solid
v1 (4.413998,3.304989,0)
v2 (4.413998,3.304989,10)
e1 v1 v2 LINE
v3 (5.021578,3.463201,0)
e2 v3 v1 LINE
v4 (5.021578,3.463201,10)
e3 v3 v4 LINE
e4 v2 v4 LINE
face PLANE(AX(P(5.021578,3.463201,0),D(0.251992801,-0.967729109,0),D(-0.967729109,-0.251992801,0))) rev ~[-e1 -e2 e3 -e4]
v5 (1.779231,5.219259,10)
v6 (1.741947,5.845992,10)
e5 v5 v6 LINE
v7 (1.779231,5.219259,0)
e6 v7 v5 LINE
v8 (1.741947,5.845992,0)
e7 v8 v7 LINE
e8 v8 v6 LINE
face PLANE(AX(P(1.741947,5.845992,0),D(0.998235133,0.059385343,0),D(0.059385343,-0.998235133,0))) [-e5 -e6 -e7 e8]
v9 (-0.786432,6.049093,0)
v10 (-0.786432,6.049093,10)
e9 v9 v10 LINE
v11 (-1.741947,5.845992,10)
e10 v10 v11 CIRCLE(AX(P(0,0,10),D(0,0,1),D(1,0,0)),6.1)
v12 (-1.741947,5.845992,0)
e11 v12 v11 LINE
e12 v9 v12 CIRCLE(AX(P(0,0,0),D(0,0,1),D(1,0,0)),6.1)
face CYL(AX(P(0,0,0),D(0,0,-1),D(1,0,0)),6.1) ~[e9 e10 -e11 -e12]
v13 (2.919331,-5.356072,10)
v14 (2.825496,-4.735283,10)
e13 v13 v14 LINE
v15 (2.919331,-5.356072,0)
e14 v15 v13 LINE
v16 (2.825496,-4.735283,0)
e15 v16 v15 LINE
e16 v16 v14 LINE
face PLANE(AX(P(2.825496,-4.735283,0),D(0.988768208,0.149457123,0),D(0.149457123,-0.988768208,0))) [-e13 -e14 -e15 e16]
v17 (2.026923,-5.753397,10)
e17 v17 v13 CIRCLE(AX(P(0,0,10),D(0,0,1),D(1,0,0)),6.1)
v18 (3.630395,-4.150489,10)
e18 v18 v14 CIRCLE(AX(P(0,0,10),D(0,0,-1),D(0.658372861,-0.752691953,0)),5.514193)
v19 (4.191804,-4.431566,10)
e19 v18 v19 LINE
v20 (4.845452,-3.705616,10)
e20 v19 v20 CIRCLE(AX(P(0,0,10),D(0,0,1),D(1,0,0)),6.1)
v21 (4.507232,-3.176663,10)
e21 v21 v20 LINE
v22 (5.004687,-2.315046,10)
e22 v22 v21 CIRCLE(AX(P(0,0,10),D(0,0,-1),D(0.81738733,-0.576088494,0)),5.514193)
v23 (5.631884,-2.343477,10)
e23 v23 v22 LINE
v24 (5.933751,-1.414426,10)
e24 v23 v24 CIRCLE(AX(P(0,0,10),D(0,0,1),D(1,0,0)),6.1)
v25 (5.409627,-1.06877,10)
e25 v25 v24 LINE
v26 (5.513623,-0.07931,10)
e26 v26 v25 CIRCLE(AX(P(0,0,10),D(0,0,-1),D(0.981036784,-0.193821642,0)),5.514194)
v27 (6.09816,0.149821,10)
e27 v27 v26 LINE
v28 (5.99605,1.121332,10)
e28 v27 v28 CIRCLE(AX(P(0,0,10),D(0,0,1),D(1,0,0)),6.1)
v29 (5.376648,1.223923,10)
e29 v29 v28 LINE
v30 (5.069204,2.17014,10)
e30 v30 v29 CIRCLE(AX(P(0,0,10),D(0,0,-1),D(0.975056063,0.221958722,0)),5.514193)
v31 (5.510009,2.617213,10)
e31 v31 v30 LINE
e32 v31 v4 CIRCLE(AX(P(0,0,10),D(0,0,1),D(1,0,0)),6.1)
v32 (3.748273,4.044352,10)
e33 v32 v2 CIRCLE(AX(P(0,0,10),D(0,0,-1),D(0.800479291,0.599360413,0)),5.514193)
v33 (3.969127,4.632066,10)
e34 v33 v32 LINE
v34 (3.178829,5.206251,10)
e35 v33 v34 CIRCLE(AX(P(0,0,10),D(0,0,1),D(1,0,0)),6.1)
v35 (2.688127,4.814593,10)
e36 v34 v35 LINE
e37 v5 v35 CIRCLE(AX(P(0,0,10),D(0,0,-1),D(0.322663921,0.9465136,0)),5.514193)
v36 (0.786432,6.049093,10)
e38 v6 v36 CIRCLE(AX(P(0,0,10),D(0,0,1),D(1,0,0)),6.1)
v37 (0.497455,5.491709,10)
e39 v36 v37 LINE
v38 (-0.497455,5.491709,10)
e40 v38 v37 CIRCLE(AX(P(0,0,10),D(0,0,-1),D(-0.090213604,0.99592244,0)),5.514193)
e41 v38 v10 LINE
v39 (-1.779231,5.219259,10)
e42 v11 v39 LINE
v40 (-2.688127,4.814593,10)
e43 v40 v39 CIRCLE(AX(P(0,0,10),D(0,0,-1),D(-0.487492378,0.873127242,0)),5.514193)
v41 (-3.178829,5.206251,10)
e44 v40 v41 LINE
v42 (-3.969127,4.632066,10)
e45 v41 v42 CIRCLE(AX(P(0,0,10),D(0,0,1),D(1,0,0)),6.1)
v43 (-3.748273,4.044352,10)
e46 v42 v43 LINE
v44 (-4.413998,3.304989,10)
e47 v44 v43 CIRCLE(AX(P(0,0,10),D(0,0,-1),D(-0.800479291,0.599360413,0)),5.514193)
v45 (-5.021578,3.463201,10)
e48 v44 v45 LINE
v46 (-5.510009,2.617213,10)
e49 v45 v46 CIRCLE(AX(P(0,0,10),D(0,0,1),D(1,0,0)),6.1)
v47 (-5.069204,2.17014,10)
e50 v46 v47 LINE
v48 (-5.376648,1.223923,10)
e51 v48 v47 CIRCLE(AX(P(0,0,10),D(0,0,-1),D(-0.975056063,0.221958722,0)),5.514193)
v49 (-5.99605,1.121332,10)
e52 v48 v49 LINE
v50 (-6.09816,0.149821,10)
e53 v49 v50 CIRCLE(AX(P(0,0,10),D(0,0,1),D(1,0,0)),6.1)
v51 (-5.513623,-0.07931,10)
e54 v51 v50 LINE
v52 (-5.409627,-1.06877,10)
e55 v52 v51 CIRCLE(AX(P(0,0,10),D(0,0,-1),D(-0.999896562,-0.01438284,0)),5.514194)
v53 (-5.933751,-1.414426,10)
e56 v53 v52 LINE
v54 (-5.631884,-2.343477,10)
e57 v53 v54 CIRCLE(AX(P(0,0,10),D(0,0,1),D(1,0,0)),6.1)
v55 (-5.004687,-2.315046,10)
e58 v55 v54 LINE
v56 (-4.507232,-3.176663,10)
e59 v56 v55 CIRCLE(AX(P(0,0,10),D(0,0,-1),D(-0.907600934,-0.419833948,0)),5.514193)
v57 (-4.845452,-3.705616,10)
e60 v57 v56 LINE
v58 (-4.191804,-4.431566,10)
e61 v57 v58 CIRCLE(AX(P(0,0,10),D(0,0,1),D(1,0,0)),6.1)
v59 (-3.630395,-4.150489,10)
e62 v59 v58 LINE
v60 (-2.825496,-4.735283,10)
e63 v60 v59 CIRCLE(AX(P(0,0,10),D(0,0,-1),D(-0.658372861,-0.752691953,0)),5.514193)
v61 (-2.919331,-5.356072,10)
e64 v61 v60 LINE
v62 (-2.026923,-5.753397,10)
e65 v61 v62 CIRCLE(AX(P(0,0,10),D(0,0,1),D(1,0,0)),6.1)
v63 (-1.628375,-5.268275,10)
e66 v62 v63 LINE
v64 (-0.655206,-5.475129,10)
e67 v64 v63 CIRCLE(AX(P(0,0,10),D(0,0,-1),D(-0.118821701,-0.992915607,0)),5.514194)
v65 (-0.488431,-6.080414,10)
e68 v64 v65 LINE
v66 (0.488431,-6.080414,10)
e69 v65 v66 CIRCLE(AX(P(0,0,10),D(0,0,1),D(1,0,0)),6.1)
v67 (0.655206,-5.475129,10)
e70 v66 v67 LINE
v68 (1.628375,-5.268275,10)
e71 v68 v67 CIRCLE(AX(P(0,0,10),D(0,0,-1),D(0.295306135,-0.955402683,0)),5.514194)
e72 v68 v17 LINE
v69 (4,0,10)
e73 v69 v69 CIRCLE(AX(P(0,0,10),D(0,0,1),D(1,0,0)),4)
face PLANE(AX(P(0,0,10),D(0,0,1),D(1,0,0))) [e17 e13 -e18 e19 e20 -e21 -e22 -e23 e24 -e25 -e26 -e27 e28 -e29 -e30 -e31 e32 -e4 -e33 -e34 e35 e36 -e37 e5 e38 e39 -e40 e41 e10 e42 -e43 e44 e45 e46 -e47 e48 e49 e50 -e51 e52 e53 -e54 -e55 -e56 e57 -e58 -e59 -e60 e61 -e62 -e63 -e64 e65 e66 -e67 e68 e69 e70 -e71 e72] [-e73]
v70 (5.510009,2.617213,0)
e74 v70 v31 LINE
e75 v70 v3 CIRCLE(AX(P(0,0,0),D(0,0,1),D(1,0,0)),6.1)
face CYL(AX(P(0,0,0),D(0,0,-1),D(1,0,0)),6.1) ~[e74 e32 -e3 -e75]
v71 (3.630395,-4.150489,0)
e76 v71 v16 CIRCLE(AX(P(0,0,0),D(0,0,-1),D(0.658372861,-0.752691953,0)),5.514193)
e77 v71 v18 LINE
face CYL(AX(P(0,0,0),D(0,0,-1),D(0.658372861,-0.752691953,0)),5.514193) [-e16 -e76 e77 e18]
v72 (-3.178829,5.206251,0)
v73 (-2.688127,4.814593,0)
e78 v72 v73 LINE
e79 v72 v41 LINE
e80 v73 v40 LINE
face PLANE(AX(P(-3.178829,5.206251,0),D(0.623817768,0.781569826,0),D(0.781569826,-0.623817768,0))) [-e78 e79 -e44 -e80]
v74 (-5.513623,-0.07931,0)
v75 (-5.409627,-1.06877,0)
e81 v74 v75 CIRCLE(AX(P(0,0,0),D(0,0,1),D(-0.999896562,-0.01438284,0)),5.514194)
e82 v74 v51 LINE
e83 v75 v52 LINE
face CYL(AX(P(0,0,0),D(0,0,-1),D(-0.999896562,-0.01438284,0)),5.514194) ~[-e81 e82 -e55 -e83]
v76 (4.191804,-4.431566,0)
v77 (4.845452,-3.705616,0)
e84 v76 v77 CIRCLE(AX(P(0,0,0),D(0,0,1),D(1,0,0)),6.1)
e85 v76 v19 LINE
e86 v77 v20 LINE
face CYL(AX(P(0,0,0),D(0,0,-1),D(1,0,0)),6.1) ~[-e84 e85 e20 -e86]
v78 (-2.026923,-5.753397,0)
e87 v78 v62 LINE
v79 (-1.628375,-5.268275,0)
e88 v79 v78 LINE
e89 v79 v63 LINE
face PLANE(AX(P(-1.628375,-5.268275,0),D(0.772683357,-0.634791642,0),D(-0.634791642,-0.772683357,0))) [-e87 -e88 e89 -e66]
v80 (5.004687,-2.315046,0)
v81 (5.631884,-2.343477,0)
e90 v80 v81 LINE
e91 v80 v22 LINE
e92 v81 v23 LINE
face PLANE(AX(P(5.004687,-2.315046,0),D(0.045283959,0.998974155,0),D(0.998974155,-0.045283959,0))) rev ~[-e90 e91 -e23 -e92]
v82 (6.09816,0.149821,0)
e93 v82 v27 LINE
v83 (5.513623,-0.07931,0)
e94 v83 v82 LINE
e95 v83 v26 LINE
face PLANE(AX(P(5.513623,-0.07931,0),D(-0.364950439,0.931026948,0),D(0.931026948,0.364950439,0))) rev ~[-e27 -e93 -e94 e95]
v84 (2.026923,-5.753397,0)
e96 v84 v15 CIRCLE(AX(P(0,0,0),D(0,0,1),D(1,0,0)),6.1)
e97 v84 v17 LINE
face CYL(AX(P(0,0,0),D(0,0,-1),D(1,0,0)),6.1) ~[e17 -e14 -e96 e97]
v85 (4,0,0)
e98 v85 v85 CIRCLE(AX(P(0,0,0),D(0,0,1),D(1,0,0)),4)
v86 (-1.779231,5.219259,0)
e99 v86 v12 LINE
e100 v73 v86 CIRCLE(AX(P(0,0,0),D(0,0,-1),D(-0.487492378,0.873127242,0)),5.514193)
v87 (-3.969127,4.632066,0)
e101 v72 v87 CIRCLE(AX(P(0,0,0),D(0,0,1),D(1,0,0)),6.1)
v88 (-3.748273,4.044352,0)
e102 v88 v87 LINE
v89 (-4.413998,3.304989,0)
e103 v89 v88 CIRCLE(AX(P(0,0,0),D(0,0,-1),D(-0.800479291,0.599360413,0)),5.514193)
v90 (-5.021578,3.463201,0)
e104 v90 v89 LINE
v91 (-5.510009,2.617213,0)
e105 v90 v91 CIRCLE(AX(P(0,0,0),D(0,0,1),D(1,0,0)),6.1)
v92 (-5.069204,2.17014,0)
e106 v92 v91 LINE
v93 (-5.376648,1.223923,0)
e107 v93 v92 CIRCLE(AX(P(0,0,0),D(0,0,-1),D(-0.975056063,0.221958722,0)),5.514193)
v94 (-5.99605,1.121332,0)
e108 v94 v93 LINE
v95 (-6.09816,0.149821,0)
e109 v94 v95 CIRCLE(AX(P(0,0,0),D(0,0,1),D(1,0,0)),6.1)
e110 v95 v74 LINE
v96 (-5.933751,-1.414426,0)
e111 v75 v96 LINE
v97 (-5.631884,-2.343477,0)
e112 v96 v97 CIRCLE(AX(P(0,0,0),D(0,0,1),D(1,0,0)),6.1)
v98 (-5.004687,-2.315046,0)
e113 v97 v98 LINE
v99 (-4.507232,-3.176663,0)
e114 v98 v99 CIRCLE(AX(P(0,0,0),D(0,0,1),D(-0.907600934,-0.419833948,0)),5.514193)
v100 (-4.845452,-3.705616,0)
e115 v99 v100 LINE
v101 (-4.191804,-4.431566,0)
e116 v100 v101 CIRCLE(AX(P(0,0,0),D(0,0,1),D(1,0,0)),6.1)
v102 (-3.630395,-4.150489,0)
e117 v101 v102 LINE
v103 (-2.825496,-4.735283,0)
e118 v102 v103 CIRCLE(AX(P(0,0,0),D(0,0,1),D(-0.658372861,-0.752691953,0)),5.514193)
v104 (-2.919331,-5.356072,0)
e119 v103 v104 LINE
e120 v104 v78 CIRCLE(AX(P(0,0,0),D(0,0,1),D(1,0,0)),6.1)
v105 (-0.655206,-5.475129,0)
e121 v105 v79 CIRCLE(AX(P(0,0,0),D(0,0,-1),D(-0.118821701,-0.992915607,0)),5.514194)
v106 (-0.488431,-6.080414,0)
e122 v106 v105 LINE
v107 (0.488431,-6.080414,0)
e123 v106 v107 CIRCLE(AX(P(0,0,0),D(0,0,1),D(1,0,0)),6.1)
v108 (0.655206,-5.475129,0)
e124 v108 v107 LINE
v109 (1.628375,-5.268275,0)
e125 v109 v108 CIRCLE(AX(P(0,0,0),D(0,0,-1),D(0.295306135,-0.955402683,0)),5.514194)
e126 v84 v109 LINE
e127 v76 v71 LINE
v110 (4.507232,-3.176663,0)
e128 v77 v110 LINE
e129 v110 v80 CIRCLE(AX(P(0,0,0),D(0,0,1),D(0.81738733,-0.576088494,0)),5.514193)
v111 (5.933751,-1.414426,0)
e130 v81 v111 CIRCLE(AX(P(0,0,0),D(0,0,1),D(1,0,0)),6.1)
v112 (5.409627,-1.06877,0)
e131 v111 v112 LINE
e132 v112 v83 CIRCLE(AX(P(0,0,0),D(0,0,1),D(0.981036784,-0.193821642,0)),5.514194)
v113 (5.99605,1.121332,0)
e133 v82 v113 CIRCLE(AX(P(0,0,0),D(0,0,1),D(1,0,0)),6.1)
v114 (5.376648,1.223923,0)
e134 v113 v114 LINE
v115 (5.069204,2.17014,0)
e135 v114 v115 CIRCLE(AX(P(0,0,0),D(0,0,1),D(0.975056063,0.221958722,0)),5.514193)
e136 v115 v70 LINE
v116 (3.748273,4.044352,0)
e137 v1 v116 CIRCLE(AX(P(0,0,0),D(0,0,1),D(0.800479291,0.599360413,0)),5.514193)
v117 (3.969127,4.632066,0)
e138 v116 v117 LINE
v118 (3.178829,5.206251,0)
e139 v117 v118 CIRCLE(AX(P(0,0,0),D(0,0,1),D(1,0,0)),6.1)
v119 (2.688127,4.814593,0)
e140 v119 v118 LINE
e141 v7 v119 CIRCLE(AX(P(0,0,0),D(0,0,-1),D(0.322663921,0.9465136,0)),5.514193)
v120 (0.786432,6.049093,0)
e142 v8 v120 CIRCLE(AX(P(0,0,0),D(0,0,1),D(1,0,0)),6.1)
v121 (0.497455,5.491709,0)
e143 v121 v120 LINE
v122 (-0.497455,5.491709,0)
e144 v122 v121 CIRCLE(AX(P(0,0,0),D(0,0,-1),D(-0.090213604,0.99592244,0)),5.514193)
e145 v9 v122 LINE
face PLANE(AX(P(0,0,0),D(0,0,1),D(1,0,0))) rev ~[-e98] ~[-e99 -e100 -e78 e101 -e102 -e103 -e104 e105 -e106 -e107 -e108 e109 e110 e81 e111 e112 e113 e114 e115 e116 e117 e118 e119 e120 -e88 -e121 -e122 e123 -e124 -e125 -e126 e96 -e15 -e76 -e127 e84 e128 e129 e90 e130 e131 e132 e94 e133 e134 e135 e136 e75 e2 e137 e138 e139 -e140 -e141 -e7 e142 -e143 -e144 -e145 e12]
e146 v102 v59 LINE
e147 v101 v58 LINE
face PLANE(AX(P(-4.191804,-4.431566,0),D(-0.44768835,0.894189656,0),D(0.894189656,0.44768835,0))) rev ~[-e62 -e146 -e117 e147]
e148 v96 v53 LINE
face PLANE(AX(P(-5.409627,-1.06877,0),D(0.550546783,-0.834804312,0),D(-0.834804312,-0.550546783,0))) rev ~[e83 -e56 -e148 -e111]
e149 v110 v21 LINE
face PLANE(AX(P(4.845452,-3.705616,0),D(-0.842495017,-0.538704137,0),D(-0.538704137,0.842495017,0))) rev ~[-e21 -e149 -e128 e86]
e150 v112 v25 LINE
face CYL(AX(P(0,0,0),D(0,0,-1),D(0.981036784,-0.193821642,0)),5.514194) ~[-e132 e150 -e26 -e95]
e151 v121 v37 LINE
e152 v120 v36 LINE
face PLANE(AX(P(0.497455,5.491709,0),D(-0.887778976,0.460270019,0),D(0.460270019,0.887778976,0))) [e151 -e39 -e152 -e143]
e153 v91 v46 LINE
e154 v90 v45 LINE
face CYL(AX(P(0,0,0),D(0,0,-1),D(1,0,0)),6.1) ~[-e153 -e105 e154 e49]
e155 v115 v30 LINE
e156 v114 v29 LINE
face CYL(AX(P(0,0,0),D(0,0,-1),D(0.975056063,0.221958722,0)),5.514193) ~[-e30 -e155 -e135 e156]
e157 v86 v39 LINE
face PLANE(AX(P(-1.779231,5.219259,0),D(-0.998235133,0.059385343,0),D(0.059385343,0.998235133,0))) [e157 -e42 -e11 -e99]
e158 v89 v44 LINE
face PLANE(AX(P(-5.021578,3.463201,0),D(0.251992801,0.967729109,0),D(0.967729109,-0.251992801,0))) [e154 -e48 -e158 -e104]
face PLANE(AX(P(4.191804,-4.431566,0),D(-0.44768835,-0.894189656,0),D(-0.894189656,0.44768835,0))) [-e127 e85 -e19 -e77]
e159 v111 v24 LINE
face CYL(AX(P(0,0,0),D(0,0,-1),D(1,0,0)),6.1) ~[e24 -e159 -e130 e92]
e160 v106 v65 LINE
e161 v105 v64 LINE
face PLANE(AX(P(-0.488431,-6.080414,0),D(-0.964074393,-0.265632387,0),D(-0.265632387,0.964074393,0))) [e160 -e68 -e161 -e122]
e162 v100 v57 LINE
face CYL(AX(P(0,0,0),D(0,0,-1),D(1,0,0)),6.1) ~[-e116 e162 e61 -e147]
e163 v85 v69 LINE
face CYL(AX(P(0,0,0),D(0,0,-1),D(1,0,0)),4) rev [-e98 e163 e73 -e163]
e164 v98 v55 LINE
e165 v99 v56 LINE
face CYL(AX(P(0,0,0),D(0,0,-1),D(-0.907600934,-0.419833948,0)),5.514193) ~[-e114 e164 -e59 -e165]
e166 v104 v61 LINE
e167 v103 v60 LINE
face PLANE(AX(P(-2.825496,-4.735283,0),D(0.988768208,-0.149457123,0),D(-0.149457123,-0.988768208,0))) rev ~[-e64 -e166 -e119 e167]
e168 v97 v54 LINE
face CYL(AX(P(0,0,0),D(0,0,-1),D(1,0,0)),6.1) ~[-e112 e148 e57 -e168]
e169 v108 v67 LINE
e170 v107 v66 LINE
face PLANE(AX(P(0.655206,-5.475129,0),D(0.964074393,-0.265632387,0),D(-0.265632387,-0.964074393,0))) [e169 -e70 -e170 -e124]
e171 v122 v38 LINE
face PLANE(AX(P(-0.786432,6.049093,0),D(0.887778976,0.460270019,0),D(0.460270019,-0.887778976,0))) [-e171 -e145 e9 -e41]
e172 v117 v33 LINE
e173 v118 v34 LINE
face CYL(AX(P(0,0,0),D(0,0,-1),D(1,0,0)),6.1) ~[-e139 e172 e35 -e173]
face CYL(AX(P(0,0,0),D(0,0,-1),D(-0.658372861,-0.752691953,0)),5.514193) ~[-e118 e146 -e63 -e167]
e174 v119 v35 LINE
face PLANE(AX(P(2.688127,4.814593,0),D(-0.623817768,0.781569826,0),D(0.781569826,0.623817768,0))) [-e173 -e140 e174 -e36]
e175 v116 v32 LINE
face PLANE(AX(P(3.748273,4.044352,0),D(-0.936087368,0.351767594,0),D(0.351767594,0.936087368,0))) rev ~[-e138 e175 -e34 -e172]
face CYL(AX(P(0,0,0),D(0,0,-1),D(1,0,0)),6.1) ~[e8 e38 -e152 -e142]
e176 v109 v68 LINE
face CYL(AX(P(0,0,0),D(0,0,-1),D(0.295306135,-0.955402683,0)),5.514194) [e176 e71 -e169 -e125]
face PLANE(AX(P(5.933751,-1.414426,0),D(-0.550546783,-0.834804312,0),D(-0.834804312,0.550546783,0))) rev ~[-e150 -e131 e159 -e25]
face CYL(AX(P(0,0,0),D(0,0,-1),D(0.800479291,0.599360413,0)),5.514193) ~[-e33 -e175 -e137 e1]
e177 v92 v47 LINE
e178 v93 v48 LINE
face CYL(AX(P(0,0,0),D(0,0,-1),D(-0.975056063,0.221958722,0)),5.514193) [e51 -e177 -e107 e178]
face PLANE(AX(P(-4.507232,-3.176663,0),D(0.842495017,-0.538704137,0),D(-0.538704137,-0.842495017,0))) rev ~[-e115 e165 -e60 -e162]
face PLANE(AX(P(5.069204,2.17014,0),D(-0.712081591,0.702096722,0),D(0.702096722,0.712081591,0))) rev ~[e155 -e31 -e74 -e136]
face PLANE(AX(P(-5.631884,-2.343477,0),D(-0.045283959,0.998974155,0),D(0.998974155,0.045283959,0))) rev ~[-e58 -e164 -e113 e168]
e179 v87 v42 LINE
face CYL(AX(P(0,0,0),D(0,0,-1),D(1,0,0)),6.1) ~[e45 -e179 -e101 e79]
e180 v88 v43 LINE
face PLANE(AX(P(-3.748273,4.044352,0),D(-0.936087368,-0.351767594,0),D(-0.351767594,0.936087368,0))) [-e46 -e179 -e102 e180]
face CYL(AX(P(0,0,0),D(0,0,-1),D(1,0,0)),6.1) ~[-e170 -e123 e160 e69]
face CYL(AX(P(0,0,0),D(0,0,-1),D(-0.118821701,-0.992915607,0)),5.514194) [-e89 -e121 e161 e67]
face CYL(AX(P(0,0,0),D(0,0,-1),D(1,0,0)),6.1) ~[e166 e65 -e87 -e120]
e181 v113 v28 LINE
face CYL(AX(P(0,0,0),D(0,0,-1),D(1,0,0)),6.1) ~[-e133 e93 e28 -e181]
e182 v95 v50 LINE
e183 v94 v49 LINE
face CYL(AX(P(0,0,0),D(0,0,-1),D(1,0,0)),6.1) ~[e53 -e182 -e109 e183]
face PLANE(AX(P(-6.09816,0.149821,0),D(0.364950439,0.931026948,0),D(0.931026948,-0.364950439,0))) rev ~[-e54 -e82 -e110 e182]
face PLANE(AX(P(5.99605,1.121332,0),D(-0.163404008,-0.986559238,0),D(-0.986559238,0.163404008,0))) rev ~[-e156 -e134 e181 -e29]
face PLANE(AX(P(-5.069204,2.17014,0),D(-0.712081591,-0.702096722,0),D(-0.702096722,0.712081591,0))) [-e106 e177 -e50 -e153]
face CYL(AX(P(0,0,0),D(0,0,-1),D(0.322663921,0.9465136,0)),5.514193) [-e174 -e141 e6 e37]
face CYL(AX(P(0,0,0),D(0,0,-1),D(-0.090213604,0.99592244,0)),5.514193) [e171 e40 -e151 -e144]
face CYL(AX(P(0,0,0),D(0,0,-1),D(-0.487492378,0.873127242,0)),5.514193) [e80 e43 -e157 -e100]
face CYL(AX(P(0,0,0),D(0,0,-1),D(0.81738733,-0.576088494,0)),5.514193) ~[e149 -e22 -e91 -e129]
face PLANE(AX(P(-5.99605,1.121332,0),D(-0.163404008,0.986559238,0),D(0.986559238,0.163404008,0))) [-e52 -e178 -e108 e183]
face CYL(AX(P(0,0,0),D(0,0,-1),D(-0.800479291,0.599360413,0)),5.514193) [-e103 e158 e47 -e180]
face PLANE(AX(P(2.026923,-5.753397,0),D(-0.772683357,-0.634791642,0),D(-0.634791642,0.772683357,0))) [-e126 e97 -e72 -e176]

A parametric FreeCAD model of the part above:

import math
import FreeCAD as App
import Part
import Sketcher
from FreeCAD import Vector

doc = App.newDocument("Part")
body = doc.addObject("PartDesign::Body", "Body")

sketch1 = doc.addObject("Sketcher::SketchObject", "Sketch")
body.addObject(sketch1)
sketch1.AttachmentSupport = (doc.XY_Plane, [""])
sketch1.MapMode = "FlatFace"
sketch1.addGeometry(Part.Circle(Vector(0, 0, 0), Vector(0, 0, 1), 6.1), False)
sketch1.addGeometry(Part.Circle(Vector(0, 0, 0), Vector(0, 0, 1), 4), False)
sketch1.addConstraint(Sketcher.Constraint("Coincident", 0, 3, -1, 1))
sketch1.addConstraint(Sketcher.Constraint("Coincident", 1, 3, -1, 1))
sketch1.addConstraint(Sketcher.Constraint("Diameter", 1, 8.0))
sketch1.addConstraint(Sketcher.Constraint("Diameter", 0, 12.2))
pad1 = doc.addObject("PartDesign::Pad", "Pad")
body.addObject(pad1)
pad1.Profile = sketch1
pad1.Length = 10

sketch2 = doc.addObject("Sketcher::SketchObject", "Sketch001")
body.addObject(sketch2)
sketch2.AttachmentSupport = (doc.XY_Plane, [""])
sketch2.MapMode = "FlatFace"
sketch2.addGeometry(Part.LineSegment(Vector(-4.845452, -3.705616, 0), Vector(-4.507232, -3.176663, 0)), False)
sketch2.addGeometry(Part.ArcOfCircle(Part.Circle(Vector(0, 0, 0), Vector(0, 0, 1), 5.514193), math.radians(-155.175896), math.radians(-144.824104)), False)
sketch2.addGeometry(Part.LineSegment(Vector(-5.004687, -2.315046, 0), Vector(-5.631884, -2.343477, 0)), False)
sketch2.addGeometry(Part.ArcOfCircle(Part.Circle(Vector(0, 0, 0), Vector(0, 0, 1), 6.1), math.radians(-157.407373), math.radians(-142.592627)), False)
sketch2.addGeometry(Part.LineSegment(Vector(-5.933751, -1.414426, 0), Vector(-5.409627, -1.06877, 0)), False)
sketch2.addGeometry(Part.ArcOfCircle(Part.Circle(Vector(0, 0, 0), Vector(0, 0, 1), 5.514194), math.radians(-179.175896), math.radians(-168.824105)), False)
sketch2.addGeometry(Part.LineSegment(Vector(-5.513623, -0.07931, 0), Vector(-6.09816, 0.149821, 0)), False)
sketch2.addGeometry(Part.ArcOfCircle(Part.Circle(Vector(0, 0, 0), Vector(0, 0, 1), 6.1), math.radians(178.592627), math.radians(193.407373)), False)
sketch2.addGeometry(Part.ArcOfCircle(Part.Circle(Vector(0, 0, 0), Vector(0, 0, 1), 5.514193), math.radians(132.824104), math.radians(143.175896)), False)
sketch2.addGeometry(Part.LineSegment(Vector(-3.748273, 4.044352, 0), Vector(-3.969127, 4.632066, 0)), False)
sketch2.addGeometry(Part.ArcOfCircle(Part.Circle(Vector(0, 0, 0), Vector(0, 0, 1), 6.1), math.radians(130.592627), math.radians(145.407373)), False)
sketch2.addGeometry(Part.LineSegment(Vector(-5.021578, 3.463201, 0), Vector(-4.413998, 3.304989, 0)), False)
sketch2.addGeometry(Part.ArcOfCircle(Part.Circle(Vector(0, 0, 0), Vector(0, 0, 1), 5.514193), math.radians(108.824104), math.radians(119.175896)), False)
sketch2.addGeometry(Part.LineSegment(Vector(-1.779231, 5.219259, 0), Vector(-1.741947, 5.845992, 0)), False)
sketch2.addGeometry(Part.ArcOfCircle(Part.Circle(Vector(0, 0, 0), Vector(0, 0, 1), 6.1), math.radians(106.592627), math.radians(121.407373)), False)
sketch2.addGeometry(Part.LineSegment(Vector(-3.178829, 5.206251, 0), Vector(-2.688127, 4.814593, 0)), False)
sketch2.addGeometry(Part.LineSegment(Vector(0.497455, 5.491709, 0), Vector(0.786432, 6.049093, 0)), False)
sketch2.addGeometry(Part.ArcOfCircle(Part.Circle(Vector(0, 0, 0), Vector(0, 0, 1), 6.1), math.radians(82.592627), math.radians(97.407373)), False)
sketch2.addGeometry(Part.LineSegment(Vector(-0.786432, 6.049093, 0), Vector(-0.497455, 5.491709, 0)), False)
sketch2.addGeometry(Part.ArcOfCircle(Part.Circle(Vector(0, 0, 0), Vector(0, 0, 1), 5.514193), math.radians(84.824104), math.radians(95.175896)), False)
sketch2.addGeometry(Part.LineSegment(Vector(2.688127, 4.814593, 0), Vector(3.178829, 5.206251, 0)), False)
sketch2.addGeometry(Part.ArcOfCircle(Part.Circle(Vector(0, 0, 0), Vector(0, 0, 1), 6.1), math.radians(58.592627), math.radians(73.407373)), False)
sketch2.addGeometry(Part.LineSegment(Vector(1.741947, 5.845992, 0), Vector(1.779231, 5.219259, 0)), False)
sketch2.addGeometry(Part.ArcOfCircle(Part.Circle(Vector(0, 0, 0), Vector(0, 0, 1), 5.514193), math.radians(60.824104), math.radians(71.175896)), False)
sketch2.addGeometry(Part.LineSegment(Vector(3.969127, 4.632066, 0), Vector(3.748273, 4.044352, 0)), False)
sketch2.addGeometry(Part.ArcOfCircle(Part.Circle(Vector(0, 0, 0), Vector(0, 0, 1), 5.514193), math.radians(36.824104), math.radians(47.175896)), False)
sketch2.addGeometry(Part.LineSegment(Vector(4.413998, 3.304989, 0), Vector(5.021578, 3.463201, 0)), False)
sketch2.addGeometry(Part.ArcOfCircle(Part.Circle(Vector(0, 0, 0), Vector(0, 0, 1), 6.1), math.radians(34.592627), math.radians(49.407373)), False)
sketch2.addGeometry(Part.LineSegment(Vector(-5.069204, 2.17014, 0), Vector(-5.510009, 2.617213, 0)), False)
sketch2.addGeometry(Part.ArcOfCircle(Part.Circle(Vector(0, 0, 0), Vector(0, 0, 1), 6.1), math.radians(154.592627), math.radians(169.407373)), False)
sketch2.addGeometry(Part.LineSegment(Vector(-5.99605, 1.121332, 0), Vector(-5.376648, 1.223923, 0)), False)
sketch2.addGeometry(Part.ArcOfCircle(Part.Circle(Vector(0, 0, 0), Vector(0, 0, 1), 5.514193), math.radians(156.824104), math.radians(167.175896)), False)
sketch2.addGeometry(Part.ArcOfCircle(Part.Circle(Vector(0, 0, 0), Vector(0, 0, 1), 6.1), math.radians(10.592627), math.radians(25.407373)), False)
sketch2.addGeometry(Part.LineSegment(Vector(5.510009, 2.617213, 0), Vector(5.069204, 2.17014, 0)), False)
sketch2.addGeometry(Part.ArcOfCircle(Part.Circle(Vector(0, 0, 0), Vector(0, 0, 1), 5.514193), math.radians(12.824104), math.radians(23.175896)), False)
sketch2.addGeometry(Part.LineSegment(Vector(5.376648, 1.223923, 0), Vector(5.99605, 1.121332, 0)), False)
sketch2.addGeometry(Part.LineSegment(Vector(6.09816, 0.149821, 0), Vector(5.513623, -0.07931, 0)), False)
sketch2.addGeometry(Part.ArcOfCircle(Part.Circle(Vector(0, 0, 0), Vector(0, 0, 1), 5.514194), math.radians(-11.175895), math.radians(-0.824104)), False)
sketch2.addGeometry(Part.LineSegment(Vector(5.409627, -1.06877, 0), Vector(5.933751, -1.414426, 0)), False)
sketch2.addGeometry(Part.ArcOfCircle(Part.Circle(Vector(0, 0, 0), Vector(0, 0, 1), 6.1), math.radians(-13.407373), math.radians(1.407373)), False)
sketch2.addGeometry(Part.LineSegment(Vector(5.631884, -2.343477, 0), Vector(5.004687, -2.315046, 0)), False)
sketch2.addGeometry(Part.ArcOfCircle(Part.Circle(Vector(0, 0, 0), Vector(0, 0, 1), 5.514193), math.radians(-35.175896), math.radians(-24.824104)), False)
sketch2.addGeometry(Part.LineSegment(Vector(4.507232, -3.176663, 0), Vector(4.845452, -3.705616, 0)), False)
sketch2.addGeometry(Part.ArcOfCircle(Part.Circle(Vector(0, 0, 0), Vector(0, 0, 1), 6.1), math.radians(-37.407373), math.radians(-22.592627)), False)
sketch2.addGeometry(Part.ArcOfCircle(Part.Circle(Vector(0, 0, 0), Vector(0, 0, 1), 5.514193), math.radians(-59.175896), math.radians(-48.824104)), False)
sketch2.addGeometry(Part.LineSegment(Vector(2.825496, -4.735283, 0), Vector(2.919331, -5.356072, 0)), False)
sketch2.addGeometry(Part.ArcOfCircle(Part.Circle(Vector(0, 0, 0), Vector(0, 0, 1), 6.1), math.radians(-61.407373), math.radians(-46.592627)), False)
sketch2.addGeometry(Part.LineSegment(Vector(4.191804, -4.431566, 0), Vector(3.630395, -4.150489, 0)), False)
sketch2.addGeometry(Part.ArcOfCircle(Part.Circle(Vector(0, 0, 0), Vector(0, 0, 1), 5.514194), math.radians(-83.175896), math.radians(-72.824105)), False)
sketch2.addGeometry(Part.LineSegment(Vector(0.655206, -5.475129, 0), Vector(0.488431, -6.080414, 0)), False)
sketch2.addGeometry(Part.ArcOfCircle(Part.Circle(Vector(0, 0, 0), Vector(0, 0, 1), 6.1), math.radians(-85.407373), math.radians(-70.592627)), False)
sketch2.addGeometry(Part.LineSegment(Vector(2.026923, -5.753397, 0), Vector(1.628375, -5.268275, 0)), False)
sketch2.addGeometry(Part.ArcOfCircle(Part.Circle(Vector(0, 0, 0), Vector(0, 0, 1), 5.514194), math.radians(-107.175895), math.radians(-96.824104)), False)
sketch2.addGeometry(Part.LineSegment(Vector(-1.628375, -5.268275, 0), Vector(-2.026923, -5.753397, 0)), False)
sketch2.addGeometry(Part.ArcOfCircle(Part.Circle(Vector(0, 0, 0), Vector(0, 0, 1), 6.1), math.radians(-109.407373), math.radians(-94.592627)), False)
sketch2.addGeometry(Part.LineSegment(Vector(-0.488431, -6.080414, 0), Vector(-0.655206, -5.475129, 0)), False)
sketch2.addGeometry(Part.ArcOfCircle(Part.Circle(Vector(0, 0, 0), Vector(0, 0, 1), 6.1), math.radians(-133.407373), math.radians(-118.592627)), False)
sketch2.addGeometry(Part.LineSegment(Vector(-2.919331, -5.356072, 0), Vector(-2.825496, -4.735283, 0)), False)
sketch2.addGeometry(Part.ArcOfCircle(Part.Circle(Vector(0, 0, 0), Vector(0, 0, 1), 5.514193), math.radians(-131.175896), math.radians(-120.824104)), False)
sketch2.addGeometry(Part.LineSegment(Vector(-3.630395, -4.150489, 0), Vector(-4.191804, -4.431566, 0)), False)
sketch2.addConstraint(Sketcher.Constraint("Coincident", 0, 2, 1, 2))
sketch2.addConstraint(Sketcher.Constraint("Coincident", 1, 1, 2, 1))
sketch2.addConstraint(Sketcher.Constraint("Coincident", 2, 2, 3, 1))
sketch2.addConstraint(Sketcher.Constraint("Coincident", 3, 2, 0, 1))
sketch2.addConstraint(Sketcher.Constraint("Coincident", 4, 2, 5, 2))
sketch2.addConstraint(Sketcher.Constraint("Coincident", 5, 1, 6, 1))
sketch2.addConstraint(Sketcher.Constraint("Coincident", 6, 2, 7, 1))
sketch2.addConstraint(Sketcher.Constraint("Coincident", 7, 2, 4, 1))
sketch2.addConstraint(Sketcher.Constraint("Coincident", 8, 1, 9, 1))
sketch2.addConstraint(Sketcher.Constraint("Coincident", 9, 2, 10, 1))
sketch2.addConstraint(Sketcher.Constraint("Coincident", 10, 2, 11, 1))
sketch2.addConstraint(Sketcher.Constraint("Coincident", 11, 2, 8, 2))
sketch2.addConstraint(Sketcher.Constraint("Coincident", 12, 1, 13, 1))
sketch2.addConstraint(Sketcher.Constraint("Coincident", 13, 2, 14, 1))
sketch2.addConstraint(Sketcher.Constraint("Coincident", 14, 2, 15, 1))
sketch2.addConstraint(Sketcher.Constraint("Coincident", 15, 2, 12, 2))
sketch2.addConstraint(Sketcher.Constraint("Coincident", 16, 2, 17, 1))
sketch2.addConstraint(Sketcher.Constraint("Coincident", 17, 2, 18, 1))
sketch2.addConstraint(Sketcher.Constraint("Coincident", 18, 2, 19, 2))
sketch2.addConstraint(Sketcher.Constraint("Coincident", 19, 1, 16, 1))
sketch2.addConstraint(Sketcher.Constraint("Coincident", 20, 2, 21, 1))
sketch2.addConstraint(Sketcher.Constraint("Coincident", 21, 2, 22, 1))
sketch2.addConstraint(Sketcher.Constraint("Coincident", 22, 2, 23, 2))
sketch2.addConstraint(Sketcher.Constraint("Coincident", 23, 1, 20, 1))
sketch2.addConstraint(Sketcher.Constraint("Coincident", 24, 2, 25, 2))
sketch2.addConstraint(Sketcher.Constraint("Coincident", 25, 1, 26, 1))
sketch2.addConstraint(Sketcher.Constraint("Coincident", 26, 2, 27, 1))
sketch2.addConstraint(Sketcher.Constraint("Coincident", 27, 2, 24, 1))
sketch2.addConstraint(Sketcher.Constraint("Coincident", 28, 2, 29, 1))
sketch2.addConstraint(Sketcher.Constraint("Coincident", 29, 2, 30, 1))
sketch2.addConstraint(Sketcher.Constraint("Coincident", 30, 2, 31, 2))
sketch2.addConstraint(Sketcher.Constraint("Coincident", 31, 1, 28, 1))
sketch2.addConstraint(Sketcher.Constraint("Coincident", 32, 2, 33, 1))
sketch2.addConstraint(Sketcher.Constraint("Coincident", 33, 2, 34, 2))
sketch2.addConstraint(Sketcher.Constraint("Coincident", 34, 1, 35, 1))
sketch2.addConstraint(Sketcher.Constraint("Coincident", 35, 2, 32, 1))
sketch2.addConstraint(Sketcher.Constraint("Coincident", 36, 2, 37, 2))
sketch2.addConstraint(Sketcher.Constraint("Coincident", 37, 1, 38, 1))
sketch2.addConstraint(Sketcher.Constraint("Coincident", 38, 2, 39, 1))
sketch2.addConstraint(Sketcher.Constraint("Coincident", 39, 2, 36, 1))
sketch2.addConstraint(Sketcher.Constraint("Coincident", 40, 2, 41, 2))
sketch2.addConstraint(Sketcher.Constraint("Coincident", 41, 1, 42, 1))
sketch2.addConstraint(Sketcher.Constraint("Coincident", 42, 2, 43, 1))
sketch2.addConstraint(Sketcher.Constraint("Coincident", 43, 2, 40, 1))
sketch2.addConstraint(Sketcher.Constraint("Coincident", 44, 1, 45, 1))
sketch2.addConstraint(Sketcher.Constraint("Coincident", 45, 2, 46, 1))
sketch2.addConstraint(Sketcher.Constraint("Coincident", 46, 2, 47, 1))
sketch2.addConstraint(Sketcher.Constraint("Coincident", 47, 2, 44, 2))
sketch2.addConstraint(Sketcher.Constraint("Coincident", 48, 1, 49, 1))
sketch2.addConstraint(Sketcher.Constraint("Coincident", 49, 2, 50, 1))
sketch2.addConstraint(Sketcher.Constraint("Coincident", 50, 2, 51, 1))
sketch2.addConstraint(Sketcher.Constraint("Coincident", 51, 2, 48, 2))
sketch2.addConstraint(Sketcher.Constraint("Coincident", 52, 1, 53, 1))
sketch2.addConstraint(Sketcher.Constraint("Coincident", 53, 2, 54, 1))
sketch2.addConstraint(Sketcher.Constraint("Coincident", 54, 2, 55, 1))
sketch2.addConstraint(Sketcher.Constraint("Coincident", 55, 2, 52, 2))
sketch2.addConstraint(Sketcher.Constraint("Coincident", 56, 2, 57, 1))
sketch2.addConstraint(Sketcher.Constraint("Coincident", 57, 2, 58, 2))
sketch2.addConstraint(Sketcher.Constraint("Coincident", 58, 1, 59, 1))
sketch2.addConstraint(Sketcher.Constraint("Coincident", 59, 2, 56, 1))
sketch2.addConstraint(Sketcher.Constraint("Coincident", 1, 3, -1, 1))
sketch2.addConstraint(Sketcher.Constraint("Coincident", 3, 3, -1, 1))
sketch2.addConstraint(Sketcher.Constraint("Coincident", 5, 3, -1, 1))
sketch2.addConstraint(Sketcher.Constraint("Coincident", 7, 3, -1, 1))
sketch2.addConstraint(Sketcher.Constraint("Coincident", 8, 3, -1, 1))
sketch2.addConstraint(Sketcher.Constraint("Coincident", 10, 3, -1, 1))
sketch2.addConstraint(Sketcher.Constraint("Coincident", 12, 3, -1, 1))
sketch2.addConstraint(Sketcher.Constraint("Coincident", 14, 3, -1, 1))
sketch2.addConstraint(Sketcher.Constraint("Coincident", 17, 3, -1, 1))
sketch2.addConstraint(Sketcher.Constraint("Coincident", 19, 3, -1, 1))
sketch2.addConstraint(Sketcher.Constraint("Coincident", 21, 3, -1, 1))
sketch2.addConstraint(Sketcher.Constraint("Coincident", 23, 3, -1, 1))
sketch2.addConstraint(Sketcher.Constraint("Coincident", 25, 3, -1, 1))
sketch2.addConstraint(Sketcher.Constraint("Coincident", 27, 3, -1, 1))
sketch2.addConstraint(Sketcher.Constraint("Coincident", 29, 3, -1, 1))
sketch2.addConstraint(Sketcher.Constraint("Coincident", 31, 3, -1, 1))
sketch2.addConstraint(Sketcher.Constraint("Coincident", 32, 3, -1, 1))
sketch2.addConstraint(Sketcher.Constraint("Coincident", 34, 3, -1, 1))
sketch2.addConstraint(Sketcher.Constraint("Coincident", 37, 3, -1, 1))
sketch2.addConstraint(Sketcher.Constraint("Coincident", 39, 3, -1, 1))
sketch2.addConstraint(Sketcher.Constraint("Coincident", 41, 3, -1, 1))
sketch2.addConstraint(Sketcher.Constraint("Coincident", 43, 3, -1, 1))
sketch2.addConstraint(Sketcher.Constraint("Coincident", 44, 3, -1, 1))
sketch2.addConstraint(Sketcher.Constraint("Coincident", 46, 3, -1, 1))
sketch2.addConstraint(Sketcher.Constraint("Coincident", 48, 3, -1, 1))
sketch2.addConstraint(Sketcher.Constraint("Coincident", 50, 3, -1, 1))
sketch2.addConstraint(Sketcher.Constraint("Coincident", 52, 3, -1, 1))
sketch2.addConstraint(Sketcher.Constraint("Coincident", 54, 3, -1, 1))
sketch2.addConstraint(Sketcher.Constraint("Coincident", 56, 3, -1, 1))
sketch2.addConstraint(Sketcher.Constraint("Coincident", 58, 3, -1, 1))
sketch2.addConstraint(Sketcher.Constraint("Equal", 1, 5))
sketch2.addConstraint(Sketcher.Constraint("Equal", 3, 7))
sketch2.addConstraint(Sketcher.Constraint("Equal", 5, 8))
sketch2.addConstraint(Sketcher.Constraint("Equal", 7, 10))
sketch2.addConstraint(Sketcher.Constraint("Equal", 8, 12))
sketch2.addConstraint(Sketcher.Constraint("Equal", 10, 14))
sketch2.addConstraint(Sketcher.Constraint("Equal", 14, 17))
sketch2.addConstraint(Sketcher.Constraint("Equal", 12, 19))
sketch2.addConstraint(Sketcher.Constraint("Equal", 17, 21))
sketch2.addConstraint(Sketcher.Constraint("Equal", 19, 23))
sketch2.addConstraint(Sketcher.Constraint("Equal", 23, 25))
sketch2.addConstraint(Sketcher.Constraint("Equal", 21, 27))
sketch2.addConstraint(Sketcher.Constraint("Equal", 27, 29))
sketch2.addConstraint(Sketcher.Constraint("Equal", 25, 31))
sketch2.addConstraint(Sketcher.Constraint("Equal", 29, 32))
sketch2.addConstraint(Sketcher.Constraint("Equal", 31, 34))
sketch2.addConstraint(Sketcher.Constraint("Equal", 34, 37))
sketch2.addConstraint(Sketcher.Constraint("Equal", 32, 39))
sketch2.addConstraint(Sketcher.Constraint("Equal", 37, 41))
sketch2.addConstraint(Sketcher.Constraint("Equal", 39, 43))
sketch2.addConstraint(Sketcher.Constraint("Equal", 41, 44))
sketch2.addConstraint(Sketcher.Constraint("Equal", 43, 46))
sketch2.addConstraint(Sketcher.Constraint("Equal", 44, 48))
sketch2.addConstraint(Sketcher.Constraint("Equal", 46, 50))
sketch2.addConstraint(Sketcher.Constraint("Equal", 48, 52))
sketch2.addConstraint(Sketcher.Constraint("Equal", 50, 54))
sketch2.addConstraint(Sketcher.Constraint("Equal", 54, 56))
sketch2.addConstraint(Sketcher.Constraint("Equal", 52, 58))
sketch2.addConstraint(Sketcher.Constraint("Horizontal", 16, 2, 17, 2))
sketch2.addConstraint(Sketcher.Constraint("Horizontal", 18, 2, 19, 1))
sketch2.addConstraint(Sketcher.Constraint("Horizontal", 14, 2, 20, 2))
sketch2.addConstraint(Sketcher.Constraint("Horizontal", 13, 2, 21, 2))
sketch2.addConstraint(Sketcher.Constraint("Horizontal", 12, 1, 22, 2))
sketch2.addConstraint(Sketcher.Constraint("Horizontal", 15, 2, 23, 1))
sketch2.addConstraint(Sketcher.Constraint("Horizontal", 8, 1, 24, 2))
sketch2.addConstraint(Sketcher.Constraint("Horizontal", 11, 2, 25, 1))
sketch2.addConstraint(Sketcher.Constraint("Horizontal", 10, 2, 26, 2))
sketch2.addConstraint(Sketcher.Constraint("Horizontal", 9, 2, 27, 2))
sketch2.addConstraint(Sketcher.Constraint("Horizontal", 28, 2, 32, 2))
sketch2.addConstraint(Sketcher.Constraint("Horizontal", 31, 1, 33, 2))
sketch2.addConstraint(Sketcher.Constraint("Horizontal", 30, 2, 34, 1))
sketch2.addConstraint(Sketcher.Constraint("Horizontal", 29, 2, 35, 2))
sketch2.addConstraint(Sketcher.Constraint("Horizontal", 5, 1, 36, 2))
sketch2.addConstraint(Sketcher.Constraint("Horizontal", 4, 2, 37, 1))
sketch2.addConstraint(Sketcher.Constraint("Horizontal", 7, 2, 38, 2))
sketch2.addConstraint(Sketcher.Constraint("Horizontal", 6, 2, 39, 2))
sketch2.addConstraint(Sketcher.Constraint("Horizontal", 1, 1, 40, 2))
sketch2.addConstraint(Sketcher.Constraint("Horizontal", 0, 2, 41, 1))
sketch2.addConstraint(Sketcher.Constraint("Horizontal", 3, 2, 42, 2))
sketch2.addConstraint(Sketcher.Constraint("Horizontal", 2, 2, 43, 2))
sketch2.addConstraint(Sketcher.Constraint("Horizontal", 51, 2, 52, 1))
sketch2.addConstraint(Sketcher.Constraint("Horizontal", 50, 2, 53, 2))
sketch2.addConstraint(Sketcher.Constraint("Horizontal", 49, 2, 54, 2))
sketch2.addConstraint(Sketcher.Constraint("Horizontal", 48, 1, 55, 2))
sketch2.addConstraint(Sketcher.Constraint("Horizontal", 45, 2, 56, 2))
sketch2.addConstraint(Sketcher.Constraint("Horizontal", 44, 1, 57, 2))
sketch2.addConstraint(Sketcher.Constraint("Horizontal", 47, 2, 58, 1))
sketch2.addConstraint(Sketcher.Constraint("Horizontal", 46, 2, 59, 2))
sketch2.addConstraint(Sketcher.Constraint("Equal", 0, 2))
sketch2.addConstraint(Sketcher.Constraint("Equal", 2, 4))
sketch2.addConstraint(Sketcher.Constraint("Equal", 4, 6))
sketch2.addConstraint(Sketcher.Constraint("Equal", 6, 9))
sketch2.addConstraint(Sketcher.Constraint("Equal", 9, 11))
sketch2.addConstraint(Sketcher.Constraint("Equal", 11, 13))
sketch2.addConstraint(Sketcher.Constraint("Equal", 13, 15))
sketch2.addConstraint(Sketcher.Constraint("Equal", 15, 16))
sketch2.addConstraint(Sketcher.Constraint("Equal", 26, 28))
sketch2.addConstraint(Sketcher.Constraint("Equal", 28, 30))
sketch2.addConstraint(Sketcher.Constraint("Equal", 42, 45))
sketch2.addConstraint(Sketcher.Constraint("Equal", 45, 47))
sketch2.addConstraint(Sketcher.Constraint("Equal", 47, 49))
sketch2.addConstraint(Sketcher.Constraint("Equal", 49, 51))
sketch2.addConstraint(Sketcher.Constraint("Radius", 3, 6.1))
sketch2.addConstraint(Sketcher.Constraint("Radius", 1, 5.514193))
sketch2.addConstraint(Sketcher.Constraint("DistanceY", -1, 1, 10, 2, 3.463201))
sketch2.addConstraint(Sketcher.Constraint("Distance", 0, 0.627841))
sketch2.addConstraint(Sketcher.Constraint("DistanceX", 0, 2, -1, 1, 4.507232))
sketch2.addConstraint(Sketcher.Constraint("DistanceY", 4, 2, -1, 1, 1.06877))
sketch2.addConstraint(Sketcher.Constraint("DistanceY", 5, 1, -1, 1, 0.07931))
sketch2.addConstraint(Sketcher.Constraint("DistanceY", -1, 1, 8, 1, 4.044352))
sketch2.addConstraint(Sketcher.Constraint("DistanceX", 12, 1, -1, 1, 1.779231))
sketch2.addConstraint(Sketcher.Constraint("DistanceX", 14, 2, -1, 1, 3.178829))
sketch2.addConstraint(Sketcher.Constraint("DistanceX", -1, 1, 16, 2, 0.786432))
sketch2.addConstraint(Sketcher.Constraint("DistanceX", 28, 2, -1, 1, 5.510009))
sketch2.addConstraint(Sketcher.Constraint("DistanceX", 29, 2, -1, 1, 5.99605))
sketch2.addConstraint(Sketcher.Constraint("DistanceX", -1, 1, 45, 2, 2.919331))
sketch2.addConstraint(Sketcher.Constraint("DistanceY", 47, 2, -1, 1, 4.150489))
sketch2.addConstraint(Sketcher.Constraint("DistanceY", 48, 1, -1, 1, 5.475129))
sketch2.addConstraint(Sketcher.Constraint("DistanceX", 1, 1, -1, 1, 5.004687))
sketch2.addConstraint(Sketcher.Constraint("DistanceX", -1, 1, 50, 2, 2.026923))
pocket1 = doc.addObject("PartDesign::Pocket", "Pocket")
body.addObject(pocket1)
pocket1.Profile = sketch2
pocket1.Type = "ThroughAll"
pocket1.Midplane = True

doc.recompute()
